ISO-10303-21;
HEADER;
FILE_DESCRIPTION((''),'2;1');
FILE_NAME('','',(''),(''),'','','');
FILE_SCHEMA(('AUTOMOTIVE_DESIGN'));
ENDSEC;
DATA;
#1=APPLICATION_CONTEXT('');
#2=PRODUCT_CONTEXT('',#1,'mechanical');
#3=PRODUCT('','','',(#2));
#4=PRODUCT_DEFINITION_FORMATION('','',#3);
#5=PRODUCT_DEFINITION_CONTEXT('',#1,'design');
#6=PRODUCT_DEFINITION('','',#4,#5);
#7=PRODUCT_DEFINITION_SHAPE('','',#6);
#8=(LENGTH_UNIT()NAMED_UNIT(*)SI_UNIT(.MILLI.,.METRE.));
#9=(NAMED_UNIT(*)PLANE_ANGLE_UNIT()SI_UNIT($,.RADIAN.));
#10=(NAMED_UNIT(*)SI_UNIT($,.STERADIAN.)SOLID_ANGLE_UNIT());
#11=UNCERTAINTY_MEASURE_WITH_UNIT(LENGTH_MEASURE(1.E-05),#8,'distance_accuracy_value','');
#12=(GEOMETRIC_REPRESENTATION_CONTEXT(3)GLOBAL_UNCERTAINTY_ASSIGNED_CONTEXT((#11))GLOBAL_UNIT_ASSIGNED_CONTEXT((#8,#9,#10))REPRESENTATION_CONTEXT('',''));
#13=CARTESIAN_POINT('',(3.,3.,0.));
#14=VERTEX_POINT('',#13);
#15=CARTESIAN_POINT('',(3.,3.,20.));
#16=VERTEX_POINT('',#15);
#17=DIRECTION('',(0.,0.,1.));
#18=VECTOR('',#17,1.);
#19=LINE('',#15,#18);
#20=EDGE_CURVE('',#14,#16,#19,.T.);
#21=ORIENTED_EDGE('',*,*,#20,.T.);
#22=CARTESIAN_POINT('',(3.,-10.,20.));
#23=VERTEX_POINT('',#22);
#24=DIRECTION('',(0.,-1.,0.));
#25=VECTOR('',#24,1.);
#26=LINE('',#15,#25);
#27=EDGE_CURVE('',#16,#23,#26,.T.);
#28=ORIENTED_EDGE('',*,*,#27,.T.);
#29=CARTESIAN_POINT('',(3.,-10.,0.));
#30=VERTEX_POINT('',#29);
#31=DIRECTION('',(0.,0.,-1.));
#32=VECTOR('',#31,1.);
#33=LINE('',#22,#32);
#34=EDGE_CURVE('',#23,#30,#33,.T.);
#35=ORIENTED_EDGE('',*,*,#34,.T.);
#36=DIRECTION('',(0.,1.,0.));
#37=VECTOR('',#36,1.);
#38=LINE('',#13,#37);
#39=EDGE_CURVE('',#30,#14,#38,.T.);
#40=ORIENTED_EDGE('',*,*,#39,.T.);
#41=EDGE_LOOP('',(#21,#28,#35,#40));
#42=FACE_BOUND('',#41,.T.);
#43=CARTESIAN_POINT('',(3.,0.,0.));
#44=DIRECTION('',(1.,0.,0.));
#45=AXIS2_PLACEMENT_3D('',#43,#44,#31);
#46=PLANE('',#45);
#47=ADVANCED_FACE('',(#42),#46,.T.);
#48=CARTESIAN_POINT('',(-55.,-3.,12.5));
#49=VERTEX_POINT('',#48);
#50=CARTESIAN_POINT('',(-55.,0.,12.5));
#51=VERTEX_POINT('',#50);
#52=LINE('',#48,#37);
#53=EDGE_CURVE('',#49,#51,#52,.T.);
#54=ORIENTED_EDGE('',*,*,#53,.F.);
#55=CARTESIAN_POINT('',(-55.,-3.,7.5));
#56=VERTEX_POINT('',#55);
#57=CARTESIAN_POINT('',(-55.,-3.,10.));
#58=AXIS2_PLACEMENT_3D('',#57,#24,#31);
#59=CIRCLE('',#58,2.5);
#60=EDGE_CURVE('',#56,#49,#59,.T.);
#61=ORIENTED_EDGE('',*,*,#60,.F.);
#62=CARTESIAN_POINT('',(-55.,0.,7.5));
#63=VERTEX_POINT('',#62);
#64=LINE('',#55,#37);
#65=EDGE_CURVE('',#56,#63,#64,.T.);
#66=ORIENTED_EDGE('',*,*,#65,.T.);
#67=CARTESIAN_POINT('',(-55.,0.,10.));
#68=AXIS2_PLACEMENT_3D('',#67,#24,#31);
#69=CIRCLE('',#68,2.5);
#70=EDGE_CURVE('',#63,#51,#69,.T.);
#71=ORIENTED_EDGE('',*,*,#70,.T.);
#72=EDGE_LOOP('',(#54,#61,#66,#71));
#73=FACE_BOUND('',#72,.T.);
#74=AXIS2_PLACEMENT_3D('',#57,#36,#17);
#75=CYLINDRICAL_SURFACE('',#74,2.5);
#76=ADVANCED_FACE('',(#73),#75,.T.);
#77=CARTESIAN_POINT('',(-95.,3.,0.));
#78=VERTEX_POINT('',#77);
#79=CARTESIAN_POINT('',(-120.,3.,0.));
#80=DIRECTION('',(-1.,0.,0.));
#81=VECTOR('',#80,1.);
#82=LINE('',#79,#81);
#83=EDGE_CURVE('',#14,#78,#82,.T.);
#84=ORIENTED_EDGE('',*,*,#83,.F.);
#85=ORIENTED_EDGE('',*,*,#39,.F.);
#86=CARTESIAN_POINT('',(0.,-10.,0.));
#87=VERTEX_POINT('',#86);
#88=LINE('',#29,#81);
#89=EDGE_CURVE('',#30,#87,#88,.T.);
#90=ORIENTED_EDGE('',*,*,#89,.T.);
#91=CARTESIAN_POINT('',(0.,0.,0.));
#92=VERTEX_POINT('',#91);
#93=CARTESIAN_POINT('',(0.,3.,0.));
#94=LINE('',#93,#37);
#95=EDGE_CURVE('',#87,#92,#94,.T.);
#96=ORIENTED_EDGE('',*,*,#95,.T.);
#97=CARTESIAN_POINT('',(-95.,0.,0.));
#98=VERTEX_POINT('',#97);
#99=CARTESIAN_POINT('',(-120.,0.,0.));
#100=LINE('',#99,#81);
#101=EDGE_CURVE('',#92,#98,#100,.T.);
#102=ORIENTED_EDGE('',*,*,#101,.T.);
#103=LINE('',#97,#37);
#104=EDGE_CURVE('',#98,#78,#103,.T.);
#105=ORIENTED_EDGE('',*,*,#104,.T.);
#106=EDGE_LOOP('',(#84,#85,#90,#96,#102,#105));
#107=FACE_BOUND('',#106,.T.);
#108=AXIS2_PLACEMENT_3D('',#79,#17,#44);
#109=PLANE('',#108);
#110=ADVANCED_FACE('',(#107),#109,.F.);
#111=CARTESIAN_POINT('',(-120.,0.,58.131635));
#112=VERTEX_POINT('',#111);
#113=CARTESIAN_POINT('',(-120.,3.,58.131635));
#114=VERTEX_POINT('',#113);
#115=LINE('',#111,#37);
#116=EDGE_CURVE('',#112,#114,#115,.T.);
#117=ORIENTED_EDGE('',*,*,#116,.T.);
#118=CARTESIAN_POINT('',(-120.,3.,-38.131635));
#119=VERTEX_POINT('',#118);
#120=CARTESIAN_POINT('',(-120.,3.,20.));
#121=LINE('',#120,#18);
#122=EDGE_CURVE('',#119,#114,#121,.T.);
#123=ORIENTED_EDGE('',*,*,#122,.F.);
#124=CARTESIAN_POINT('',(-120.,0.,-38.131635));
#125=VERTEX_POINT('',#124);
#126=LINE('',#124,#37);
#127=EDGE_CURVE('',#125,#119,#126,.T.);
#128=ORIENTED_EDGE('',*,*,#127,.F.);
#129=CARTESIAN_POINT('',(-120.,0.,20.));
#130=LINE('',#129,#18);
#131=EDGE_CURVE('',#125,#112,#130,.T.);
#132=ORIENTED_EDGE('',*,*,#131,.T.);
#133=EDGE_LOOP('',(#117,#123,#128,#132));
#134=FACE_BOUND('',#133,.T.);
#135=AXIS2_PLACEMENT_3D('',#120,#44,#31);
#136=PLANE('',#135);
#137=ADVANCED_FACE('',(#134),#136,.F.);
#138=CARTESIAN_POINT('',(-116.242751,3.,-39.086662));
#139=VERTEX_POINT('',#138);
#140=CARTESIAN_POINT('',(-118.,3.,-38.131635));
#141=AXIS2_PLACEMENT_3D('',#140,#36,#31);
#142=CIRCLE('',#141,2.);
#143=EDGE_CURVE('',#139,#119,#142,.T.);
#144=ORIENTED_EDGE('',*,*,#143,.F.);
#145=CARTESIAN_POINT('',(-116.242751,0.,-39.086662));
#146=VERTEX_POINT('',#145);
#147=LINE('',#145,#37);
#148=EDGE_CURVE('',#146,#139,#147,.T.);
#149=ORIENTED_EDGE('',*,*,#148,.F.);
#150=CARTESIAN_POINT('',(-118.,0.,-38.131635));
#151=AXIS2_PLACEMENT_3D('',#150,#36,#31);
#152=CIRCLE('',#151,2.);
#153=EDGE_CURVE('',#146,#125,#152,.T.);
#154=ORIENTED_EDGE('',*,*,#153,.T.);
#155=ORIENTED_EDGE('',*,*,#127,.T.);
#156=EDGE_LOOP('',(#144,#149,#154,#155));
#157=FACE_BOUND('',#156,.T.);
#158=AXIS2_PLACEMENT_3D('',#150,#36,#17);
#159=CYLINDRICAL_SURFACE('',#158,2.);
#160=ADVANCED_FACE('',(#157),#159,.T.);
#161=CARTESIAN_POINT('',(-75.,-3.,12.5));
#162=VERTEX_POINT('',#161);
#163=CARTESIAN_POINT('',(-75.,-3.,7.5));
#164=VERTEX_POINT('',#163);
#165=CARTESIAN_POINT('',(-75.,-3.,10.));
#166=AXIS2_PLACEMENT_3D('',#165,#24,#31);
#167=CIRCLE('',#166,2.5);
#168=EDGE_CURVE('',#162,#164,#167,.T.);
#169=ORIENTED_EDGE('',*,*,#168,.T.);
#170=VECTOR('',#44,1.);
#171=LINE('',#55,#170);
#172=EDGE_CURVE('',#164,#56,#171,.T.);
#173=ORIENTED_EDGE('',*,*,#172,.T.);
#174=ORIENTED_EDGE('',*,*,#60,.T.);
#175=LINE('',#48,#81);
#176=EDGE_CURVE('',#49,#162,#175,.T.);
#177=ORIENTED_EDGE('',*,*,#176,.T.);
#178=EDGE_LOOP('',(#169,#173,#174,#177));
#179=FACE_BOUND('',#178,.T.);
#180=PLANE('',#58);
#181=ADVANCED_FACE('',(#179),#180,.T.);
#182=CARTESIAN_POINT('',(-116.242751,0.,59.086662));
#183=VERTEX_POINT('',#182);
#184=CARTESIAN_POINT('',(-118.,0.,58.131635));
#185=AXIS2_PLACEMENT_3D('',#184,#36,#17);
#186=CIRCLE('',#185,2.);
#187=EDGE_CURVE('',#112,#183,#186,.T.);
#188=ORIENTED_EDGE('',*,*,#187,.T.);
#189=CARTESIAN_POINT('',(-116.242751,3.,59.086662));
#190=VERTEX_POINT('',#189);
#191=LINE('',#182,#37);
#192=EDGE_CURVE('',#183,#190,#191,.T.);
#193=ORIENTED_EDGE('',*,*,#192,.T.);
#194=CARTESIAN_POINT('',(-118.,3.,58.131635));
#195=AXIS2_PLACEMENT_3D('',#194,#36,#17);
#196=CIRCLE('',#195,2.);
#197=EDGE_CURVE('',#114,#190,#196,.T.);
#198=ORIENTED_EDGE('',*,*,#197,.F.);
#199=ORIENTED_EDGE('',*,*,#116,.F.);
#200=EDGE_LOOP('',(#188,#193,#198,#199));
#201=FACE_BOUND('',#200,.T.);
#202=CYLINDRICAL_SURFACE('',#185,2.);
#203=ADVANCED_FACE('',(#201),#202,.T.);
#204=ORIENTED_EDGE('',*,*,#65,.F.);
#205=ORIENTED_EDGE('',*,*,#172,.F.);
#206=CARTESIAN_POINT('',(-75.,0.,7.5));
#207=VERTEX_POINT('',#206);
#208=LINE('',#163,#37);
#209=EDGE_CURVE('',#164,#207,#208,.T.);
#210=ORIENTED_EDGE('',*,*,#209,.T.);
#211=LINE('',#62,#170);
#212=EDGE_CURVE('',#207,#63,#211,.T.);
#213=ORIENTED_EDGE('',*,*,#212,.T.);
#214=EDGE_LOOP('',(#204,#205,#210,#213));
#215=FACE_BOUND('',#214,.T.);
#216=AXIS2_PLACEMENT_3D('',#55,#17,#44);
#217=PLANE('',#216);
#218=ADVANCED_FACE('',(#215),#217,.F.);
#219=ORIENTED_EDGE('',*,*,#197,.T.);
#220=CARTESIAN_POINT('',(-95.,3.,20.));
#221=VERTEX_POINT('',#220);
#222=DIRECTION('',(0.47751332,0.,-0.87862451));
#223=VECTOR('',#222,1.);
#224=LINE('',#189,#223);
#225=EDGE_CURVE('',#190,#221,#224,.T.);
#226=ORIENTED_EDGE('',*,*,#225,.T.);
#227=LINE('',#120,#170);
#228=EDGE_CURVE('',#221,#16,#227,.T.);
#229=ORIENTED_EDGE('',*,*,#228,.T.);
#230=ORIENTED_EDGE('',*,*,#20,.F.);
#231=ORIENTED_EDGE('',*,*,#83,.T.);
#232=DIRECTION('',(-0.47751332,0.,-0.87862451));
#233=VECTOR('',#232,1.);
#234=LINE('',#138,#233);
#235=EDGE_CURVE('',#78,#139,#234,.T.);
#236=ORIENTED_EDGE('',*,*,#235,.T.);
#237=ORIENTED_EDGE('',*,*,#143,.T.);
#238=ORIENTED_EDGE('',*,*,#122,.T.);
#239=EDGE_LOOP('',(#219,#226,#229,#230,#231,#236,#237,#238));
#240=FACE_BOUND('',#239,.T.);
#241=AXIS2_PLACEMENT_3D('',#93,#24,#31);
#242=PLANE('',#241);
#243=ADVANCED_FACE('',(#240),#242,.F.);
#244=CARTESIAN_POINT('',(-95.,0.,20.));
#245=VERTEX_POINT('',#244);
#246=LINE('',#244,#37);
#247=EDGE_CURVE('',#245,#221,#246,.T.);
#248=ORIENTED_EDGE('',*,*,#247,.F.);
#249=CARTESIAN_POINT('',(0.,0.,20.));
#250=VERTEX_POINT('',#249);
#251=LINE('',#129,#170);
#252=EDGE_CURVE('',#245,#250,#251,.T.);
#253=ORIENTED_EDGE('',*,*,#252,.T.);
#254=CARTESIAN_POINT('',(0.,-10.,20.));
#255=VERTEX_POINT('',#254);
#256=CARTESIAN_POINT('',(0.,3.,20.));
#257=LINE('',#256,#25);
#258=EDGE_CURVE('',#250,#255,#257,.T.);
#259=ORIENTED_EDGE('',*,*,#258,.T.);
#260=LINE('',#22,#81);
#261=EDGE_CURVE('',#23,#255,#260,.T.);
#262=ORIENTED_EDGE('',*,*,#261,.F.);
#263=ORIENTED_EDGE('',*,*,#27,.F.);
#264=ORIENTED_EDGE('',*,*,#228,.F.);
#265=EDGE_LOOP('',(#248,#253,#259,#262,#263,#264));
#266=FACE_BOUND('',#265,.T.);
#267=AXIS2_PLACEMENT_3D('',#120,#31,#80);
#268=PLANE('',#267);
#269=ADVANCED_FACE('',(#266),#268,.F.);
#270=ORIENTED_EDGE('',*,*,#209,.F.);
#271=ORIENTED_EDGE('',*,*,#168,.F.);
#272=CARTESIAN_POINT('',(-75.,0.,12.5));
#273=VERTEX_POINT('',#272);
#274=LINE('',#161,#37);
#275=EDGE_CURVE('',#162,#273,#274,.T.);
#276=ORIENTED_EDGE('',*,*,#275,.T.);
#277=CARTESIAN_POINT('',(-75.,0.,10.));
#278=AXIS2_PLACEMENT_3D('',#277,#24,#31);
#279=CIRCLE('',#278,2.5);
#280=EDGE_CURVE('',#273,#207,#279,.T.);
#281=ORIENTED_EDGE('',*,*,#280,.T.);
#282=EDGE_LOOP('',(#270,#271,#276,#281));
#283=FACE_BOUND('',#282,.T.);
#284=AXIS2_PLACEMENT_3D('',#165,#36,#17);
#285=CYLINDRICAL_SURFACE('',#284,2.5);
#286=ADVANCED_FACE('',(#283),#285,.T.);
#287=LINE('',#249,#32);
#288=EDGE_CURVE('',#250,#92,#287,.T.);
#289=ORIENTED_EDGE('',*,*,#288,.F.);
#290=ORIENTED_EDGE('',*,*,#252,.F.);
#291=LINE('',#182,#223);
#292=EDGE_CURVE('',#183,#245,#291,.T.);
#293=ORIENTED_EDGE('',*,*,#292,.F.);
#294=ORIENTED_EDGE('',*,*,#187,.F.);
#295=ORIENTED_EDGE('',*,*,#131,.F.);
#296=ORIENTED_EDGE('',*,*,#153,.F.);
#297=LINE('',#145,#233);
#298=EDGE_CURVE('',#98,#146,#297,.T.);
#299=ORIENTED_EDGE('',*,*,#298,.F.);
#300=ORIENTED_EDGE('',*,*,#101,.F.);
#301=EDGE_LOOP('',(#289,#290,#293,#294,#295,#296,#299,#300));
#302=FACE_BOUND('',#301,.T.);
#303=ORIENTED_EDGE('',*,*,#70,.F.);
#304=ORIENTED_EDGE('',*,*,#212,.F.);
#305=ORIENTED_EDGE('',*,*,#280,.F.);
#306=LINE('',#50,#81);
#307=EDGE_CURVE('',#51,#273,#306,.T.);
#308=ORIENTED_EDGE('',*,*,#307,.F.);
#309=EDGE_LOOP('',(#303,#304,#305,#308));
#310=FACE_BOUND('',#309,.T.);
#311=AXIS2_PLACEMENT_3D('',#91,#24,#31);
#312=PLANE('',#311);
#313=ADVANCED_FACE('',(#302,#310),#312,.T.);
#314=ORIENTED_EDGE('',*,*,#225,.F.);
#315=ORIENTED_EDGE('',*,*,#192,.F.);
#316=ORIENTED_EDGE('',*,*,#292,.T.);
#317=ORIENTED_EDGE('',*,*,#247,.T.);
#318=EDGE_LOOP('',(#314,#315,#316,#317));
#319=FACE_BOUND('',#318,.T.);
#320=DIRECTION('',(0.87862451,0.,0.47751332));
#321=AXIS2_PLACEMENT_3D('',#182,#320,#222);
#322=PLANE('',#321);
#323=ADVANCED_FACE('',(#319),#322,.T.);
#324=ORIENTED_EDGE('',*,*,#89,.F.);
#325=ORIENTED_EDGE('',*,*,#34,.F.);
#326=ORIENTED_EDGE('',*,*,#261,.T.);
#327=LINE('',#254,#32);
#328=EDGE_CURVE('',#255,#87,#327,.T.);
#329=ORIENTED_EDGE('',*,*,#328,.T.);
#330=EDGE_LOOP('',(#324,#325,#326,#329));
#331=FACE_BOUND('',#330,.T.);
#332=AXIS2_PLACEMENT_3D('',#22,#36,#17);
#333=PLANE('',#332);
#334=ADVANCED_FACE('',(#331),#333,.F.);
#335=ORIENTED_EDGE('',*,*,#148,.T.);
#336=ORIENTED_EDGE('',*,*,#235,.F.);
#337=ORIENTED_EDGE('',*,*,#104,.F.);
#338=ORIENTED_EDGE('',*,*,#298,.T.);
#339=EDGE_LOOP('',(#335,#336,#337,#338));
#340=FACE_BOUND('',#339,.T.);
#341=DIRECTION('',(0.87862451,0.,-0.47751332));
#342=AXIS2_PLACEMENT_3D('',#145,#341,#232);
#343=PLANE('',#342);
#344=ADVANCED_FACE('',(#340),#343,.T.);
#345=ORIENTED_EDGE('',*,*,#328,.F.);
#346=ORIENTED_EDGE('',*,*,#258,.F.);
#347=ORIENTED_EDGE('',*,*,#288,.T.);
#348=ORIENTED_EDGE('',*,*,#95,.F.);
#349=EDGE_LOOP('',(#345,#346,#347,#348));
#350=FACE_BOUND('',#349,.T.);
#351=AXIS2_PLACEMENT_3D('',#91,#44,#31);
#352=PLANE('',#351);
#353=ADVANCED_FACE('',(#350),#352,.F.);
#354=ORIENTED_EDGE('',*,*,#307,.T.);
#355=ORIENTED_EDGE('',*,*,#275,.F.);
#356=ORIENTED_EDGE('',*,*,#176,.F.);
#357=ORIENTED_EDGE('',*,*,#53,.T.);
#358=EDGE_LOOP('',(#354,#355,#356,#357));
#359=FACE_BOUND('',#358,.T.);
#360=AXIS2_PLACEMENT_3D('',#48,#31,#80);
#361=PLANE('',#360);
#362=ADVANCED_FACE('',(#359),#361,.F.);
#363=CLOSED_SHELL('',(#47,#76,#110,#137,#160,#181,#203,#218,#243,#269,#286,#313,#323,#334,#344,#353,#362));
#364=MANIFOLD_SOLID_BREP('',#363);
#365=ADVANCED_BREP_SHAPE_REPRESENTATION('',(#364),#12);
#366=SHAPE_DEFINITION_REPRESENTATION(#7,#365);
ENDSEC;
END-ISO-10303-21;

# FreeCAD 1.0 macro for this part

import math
import FreeCAD as App
import Part
import Sketcher

doc = App.newDocument("Part")
body = doc.addObject("PartDesign::Body", "Body")

sketch1 = body.newObject("Sketcher::SketchObject", "Sketch")
sketch1.AttachmentSupport = (doc.getObject("XZ_Plane"), [""])
sketch1.MapMode = "FlatFace"
sketch1.addGeometry(Part.LineSegment(App.Vector(-120, 0, 0), App.Vector(-120, 20, 0)), False)
sketch1.addGeometry(Part.LineSegment(App.Vector(-120, 20, 0), App.Vector(0, 20, 0)), False)
sketch1.addGeometry(Part.LineSegment(App.Vector(0, 20, 0), App.Vector(0, 0, 0)), False)
sketch1.addGeometry(Part.LineSegment(App.Vector(0, 0, 0), App.Vector(-120, 0, 0)), False)
sketch1.addConstraint(Sketcher.Constraint("Coincident", 0, 2, 1, 1))
sketch1.addConstraint(Sketcher.Constraint("Coincident", 1, 2, 2, 1))
sketch1.addConstraint(Sketcher.Constraint("Coincident", 2, 2, 3, 1))
sketch1.addConstraint(Sketcher.Constraint("Coincident", 3, 2, 0, 1))
sketch1.addConstraint(Sketcher.Constraint("Vertical", 0))
sketch1.addConstraint(Sketcher.Constraint("Horizontal", 1))
sketch1.addConstraint(Sketcher.Constraint("Vertical", 2))
sketch1.addConstraint(Sketcher.Constraint("Horizontal", 3))
sketch1.addConstraint(Sketcher.Constraint("Coincident", 2, 2, -1, 1))
sketch1.addConstraint(Sketcher.Constraint("DistanceX", 1, 1, 1, 2, 120.0))
sketch1.addConstraint(Sketcher.Constraint("DistanceY", 0, 1, 0, 2, 20.0))
pad1 = body.newObject("PartDesign::Pad", "Pad")
pad1.Profile = sketch1
pad1.Length = 3
pad1.Reversed = True

sketch2 = body.newObject("Sketcher::SketchObject", "Sketch001")
sketch2.AttachmentSupport = (doc.getObject("YZ_Plane"), [""])
sketch2.MapMode = "FlatFace"
sketch2.addGeometry(Part.LineSegment(App.Vector(3, 20, 0), App.Vector(-10, 20, 0)), False)
sketch2.addGeometry(Part.LineSegment(App.Vector(-10, 20, 0), App.Vector(-10, 0, 0)), False)
sketch2.addGeometry(Part.LineSegment(App.Vector(-10, 0, 0), App.Vector(3, 0, 0)), False)
sketch2.addGeometry(Part.LineSegment(App.Vector(3, 0, 0), App.Vector(3, 20, 0)), False)
sketch2.addConstraint(Sketcher.Constraint("Coincident", 0, 2, 1, 1))
sketch2.addConstraint(Sketcher.Constraint("Coincident", 1, 2, 2, 1))
sketch2.addConstraint(Sketcher.Constraint("Coincident", 2, 2, 3, 1))
sketch2.addConstraint(Sketcher.Constraint("Coincident", 3, 2, 0, 1))
sketch2.addConstraint(Sketcher.Constraint("Horizontal", 0))
sketch2.addConstraint(Sketcher.Constraint("Vertical", 1))
sketch2.addConstraint(Sketcher.Constraint("Horizontal", 2))
sketch2.addConstraint(Sketcher.Constraint("Vertical", 3))
sketch2.addConstraint(Sketcher.Constraint("PointOnObject", 1, 2, -1))
sketch2.addConstraint(Sketcher.Constraint("DistanceX", 0, 2, 0, 1, 13.0))
sketch2.addConstraint(Sketcher.Constraint("DistanceY", 1, 2, 1, 1, 20.0))
sketch2.addConstraint(Sketcher.Constraint("DistanceX", 0, 2, -1, 1, 10.0))
pad2 = body.newObject("PartDesign::Pad", "Pad001")
pad2.Profile = sketch2
pad2.Length = 3

sketch3 = body.newObject("Sketcher::SketchObject", "Sketch002")
sketch3.AttachmentSupport = (doc.getObject("XZ_Plane"), [""])
sketch3.MapMode = "FlatFace"
sketch3.AttachmentOffset = App.Placement(App.Vector(0, 0, -3), App.Rotation())
sketch3.addGeometry(Part.LineSegment(App.Vector(-120, 20, 0), App.Vector(-120, 58.131635, 0)), False)
sketch3.addGeometry(Part.ArcOfCircle(Part.Circle(App.Vector(-118, 58.131635, 0), App.Vector(0, 0, 1), 2), math.radians(28.523119), math.radians(180)), False)
sketch3.addGeometry(Part.LineSegment(App.Vector(-116.242751, 59.086662, 0), App.Vector(-95, 20, 0)), False)
sketch3.addGeometry(Part.LineSegment(App.Vector(-95, 20, 0), App.Vector(-120, 20, 0)), False)
sketch3.addGeometry(Part.LineSegment(App.Vector(-120, -38.131635, 0), App.Vector(-120, 0, 0)), False)
sketch3.addGeometry(Part.LineSegment(App.Vector(-120, 0, 0), App.Vector(-95, 0, 0)), False)
sketch3.addGeometry(Part.LineSegment(App.Vector(-95, 0, 0), App.Vector(-116.242751, -39.086662, 0)), False)
sketch3.addGeometry(Part.ArcOfCircle(Part.Circle(App.Vector(-118, -38.131635, 0), App.Vector(0, 0, 1), 2), math.radians(180), math.radians(331.476881)), False)
sketch3.addConstraint(Sketcher.Constraint("Tangent", 0, 2, 1, 2))
sketch3.addConstraint(Sketcher.Constraint("Tangent", 1, 1, 2, 1))
sketch3.addConstraint(Sketcher.Constraint("Coincident", 2, 2, 3, 1))
sketch3.addConstraint(Sketcher.Constraint("Coincident", 3, 2, 0, 1))
sketch3.addConstraint(Sketcher.Constraint("Coincident", 4, 2, 5, 1))
sketch3.addConstraint(Sketcher.Constraint("Coincident", 5, 2, 6, 1))
sketch3.addConstraint(Sketcher.Constraint("Tangent", 6, 2, 7, 2))
sketch3.addConstraint(Sketcher.Constraint("Tangent", 7, 1, 4, 1))
sketch3.addConstraint(Sketcher.Constraint("Vertical", 0))
sketch3.addConstraint(Sketcher.Constraint("Horizontal", 3))
sketch3.addConstraint(Sketcher.Constraint("Vertical", 4))
sketch3.addConstraint(Sketcher.Constraint("Horizontal", 5))
sketch3.addConstraint(Sketcher.Constraint("Equal", 1, 7))
sketch3.addConstraint(Sketcher.Constraint("PointOnObject", 4, 2, -1))
sketch3.addConstraint(Sketcher.Constraint("Vertical", 1, 3, 7, 3))
sketch3.addConstraint(Sketcher.Constraint("Vertical", 2, 2, 5, 2))
sketch3.addConstraint(Sketcher.Constraint("Vertical", 1, 1, 6, 2))
sketch3.addConstraint(Sketcher.Constraint("Radius", 1, 2.0))
sketch3.addConstraint(Sketcher.Constraint("DistanceX", 3, 2, 3, 1, 25.0))
sketch3.addConstraint(Sketcher.Constraint("DistanceX", 1, 3, -1, 1, 118.0))
sketch3.addConstraint(Sketcher.Constraint("DistanceY", -1, 1, 2, 2, 20.0))
sketch3.addConstraint(Sketcher.Constraint("DistanceY", 0, 1, 0, 2, 38.131635))
pad3 = body.newObject("PartDesign::Pad", "Pad002")
pad3.Profile = sketch3
pad3.Length = 3

sketch4 = body.newObject("Sketcher::SketchObject", "Sketch003")
sketch4.AttachmentSupport = (doc.getObject("XZ_Plane"), [""])
sketch4.MapMode = "FlatFace"
sketch4.addGeometry(Part.LineSegment(App.Vector(-75, 7.5, 0), App.Vector(-55, 7.5, 0)), False)
sketch4.addGeometry(Part.ArcOfCircle(Part.Circle(App.Vector(-55, 10, 0), App.Vector(0, 0, 1), 2.5), math.radians(-90), math.radians(90)), False)
sketch4.addGeometry(Part.LineSegment(App.Vector(-55, 12.5, 0), App.Vector(-75, 12.5, 0)), False)
sketch4.addGeometry(Part.ArcOfCircle(Part.Circle(App.Vector(-75, 10, 0), App.Vector(0, 0, 1), 2.5), math.radians(90), math.radians(270)), False)
sketch4.addConstraint(Sketcher.Constraint("Tangent", 0, 2, 1, 1))
sketch4.addConstraint(Sketcher.Constraint("Tangent", 1, 2, 2, 1))
sketch4.addConstraint(Sketcher.Constraint("Tangent", 2, 2, 3, 1))
sketch4.addConstraint(Sketcher.Constraint("Tangent", 3, 2, 0, 1))
sketch4.addConstraint(Sketcher.Constraint("Horizontal", 0))
sketch4.addConstraint(Sketcher.Constraint("Horizontal", 2))
sketch4.addConstraint(Sketcher.Constraint("Radius", 1, 2.5))
sketch4.addConstraint(Sketcher.Constraint("DistanceX", 0, 1, 0, 2, 20.0))
sketch4.addConstraint(Sketcher.Constraint("DistanceX", 1, 3, -1, 1, 55.0))
sketch4.addConstraint(Sketcher.Constraint("DistanceY", -1, 1, 1, 3, 10.0))
pad4 = body.newObject("PartDesign::Pad", "Pad003")
pad4.Profile = sketch4
pad4.Length = 3

doc.recompute()
